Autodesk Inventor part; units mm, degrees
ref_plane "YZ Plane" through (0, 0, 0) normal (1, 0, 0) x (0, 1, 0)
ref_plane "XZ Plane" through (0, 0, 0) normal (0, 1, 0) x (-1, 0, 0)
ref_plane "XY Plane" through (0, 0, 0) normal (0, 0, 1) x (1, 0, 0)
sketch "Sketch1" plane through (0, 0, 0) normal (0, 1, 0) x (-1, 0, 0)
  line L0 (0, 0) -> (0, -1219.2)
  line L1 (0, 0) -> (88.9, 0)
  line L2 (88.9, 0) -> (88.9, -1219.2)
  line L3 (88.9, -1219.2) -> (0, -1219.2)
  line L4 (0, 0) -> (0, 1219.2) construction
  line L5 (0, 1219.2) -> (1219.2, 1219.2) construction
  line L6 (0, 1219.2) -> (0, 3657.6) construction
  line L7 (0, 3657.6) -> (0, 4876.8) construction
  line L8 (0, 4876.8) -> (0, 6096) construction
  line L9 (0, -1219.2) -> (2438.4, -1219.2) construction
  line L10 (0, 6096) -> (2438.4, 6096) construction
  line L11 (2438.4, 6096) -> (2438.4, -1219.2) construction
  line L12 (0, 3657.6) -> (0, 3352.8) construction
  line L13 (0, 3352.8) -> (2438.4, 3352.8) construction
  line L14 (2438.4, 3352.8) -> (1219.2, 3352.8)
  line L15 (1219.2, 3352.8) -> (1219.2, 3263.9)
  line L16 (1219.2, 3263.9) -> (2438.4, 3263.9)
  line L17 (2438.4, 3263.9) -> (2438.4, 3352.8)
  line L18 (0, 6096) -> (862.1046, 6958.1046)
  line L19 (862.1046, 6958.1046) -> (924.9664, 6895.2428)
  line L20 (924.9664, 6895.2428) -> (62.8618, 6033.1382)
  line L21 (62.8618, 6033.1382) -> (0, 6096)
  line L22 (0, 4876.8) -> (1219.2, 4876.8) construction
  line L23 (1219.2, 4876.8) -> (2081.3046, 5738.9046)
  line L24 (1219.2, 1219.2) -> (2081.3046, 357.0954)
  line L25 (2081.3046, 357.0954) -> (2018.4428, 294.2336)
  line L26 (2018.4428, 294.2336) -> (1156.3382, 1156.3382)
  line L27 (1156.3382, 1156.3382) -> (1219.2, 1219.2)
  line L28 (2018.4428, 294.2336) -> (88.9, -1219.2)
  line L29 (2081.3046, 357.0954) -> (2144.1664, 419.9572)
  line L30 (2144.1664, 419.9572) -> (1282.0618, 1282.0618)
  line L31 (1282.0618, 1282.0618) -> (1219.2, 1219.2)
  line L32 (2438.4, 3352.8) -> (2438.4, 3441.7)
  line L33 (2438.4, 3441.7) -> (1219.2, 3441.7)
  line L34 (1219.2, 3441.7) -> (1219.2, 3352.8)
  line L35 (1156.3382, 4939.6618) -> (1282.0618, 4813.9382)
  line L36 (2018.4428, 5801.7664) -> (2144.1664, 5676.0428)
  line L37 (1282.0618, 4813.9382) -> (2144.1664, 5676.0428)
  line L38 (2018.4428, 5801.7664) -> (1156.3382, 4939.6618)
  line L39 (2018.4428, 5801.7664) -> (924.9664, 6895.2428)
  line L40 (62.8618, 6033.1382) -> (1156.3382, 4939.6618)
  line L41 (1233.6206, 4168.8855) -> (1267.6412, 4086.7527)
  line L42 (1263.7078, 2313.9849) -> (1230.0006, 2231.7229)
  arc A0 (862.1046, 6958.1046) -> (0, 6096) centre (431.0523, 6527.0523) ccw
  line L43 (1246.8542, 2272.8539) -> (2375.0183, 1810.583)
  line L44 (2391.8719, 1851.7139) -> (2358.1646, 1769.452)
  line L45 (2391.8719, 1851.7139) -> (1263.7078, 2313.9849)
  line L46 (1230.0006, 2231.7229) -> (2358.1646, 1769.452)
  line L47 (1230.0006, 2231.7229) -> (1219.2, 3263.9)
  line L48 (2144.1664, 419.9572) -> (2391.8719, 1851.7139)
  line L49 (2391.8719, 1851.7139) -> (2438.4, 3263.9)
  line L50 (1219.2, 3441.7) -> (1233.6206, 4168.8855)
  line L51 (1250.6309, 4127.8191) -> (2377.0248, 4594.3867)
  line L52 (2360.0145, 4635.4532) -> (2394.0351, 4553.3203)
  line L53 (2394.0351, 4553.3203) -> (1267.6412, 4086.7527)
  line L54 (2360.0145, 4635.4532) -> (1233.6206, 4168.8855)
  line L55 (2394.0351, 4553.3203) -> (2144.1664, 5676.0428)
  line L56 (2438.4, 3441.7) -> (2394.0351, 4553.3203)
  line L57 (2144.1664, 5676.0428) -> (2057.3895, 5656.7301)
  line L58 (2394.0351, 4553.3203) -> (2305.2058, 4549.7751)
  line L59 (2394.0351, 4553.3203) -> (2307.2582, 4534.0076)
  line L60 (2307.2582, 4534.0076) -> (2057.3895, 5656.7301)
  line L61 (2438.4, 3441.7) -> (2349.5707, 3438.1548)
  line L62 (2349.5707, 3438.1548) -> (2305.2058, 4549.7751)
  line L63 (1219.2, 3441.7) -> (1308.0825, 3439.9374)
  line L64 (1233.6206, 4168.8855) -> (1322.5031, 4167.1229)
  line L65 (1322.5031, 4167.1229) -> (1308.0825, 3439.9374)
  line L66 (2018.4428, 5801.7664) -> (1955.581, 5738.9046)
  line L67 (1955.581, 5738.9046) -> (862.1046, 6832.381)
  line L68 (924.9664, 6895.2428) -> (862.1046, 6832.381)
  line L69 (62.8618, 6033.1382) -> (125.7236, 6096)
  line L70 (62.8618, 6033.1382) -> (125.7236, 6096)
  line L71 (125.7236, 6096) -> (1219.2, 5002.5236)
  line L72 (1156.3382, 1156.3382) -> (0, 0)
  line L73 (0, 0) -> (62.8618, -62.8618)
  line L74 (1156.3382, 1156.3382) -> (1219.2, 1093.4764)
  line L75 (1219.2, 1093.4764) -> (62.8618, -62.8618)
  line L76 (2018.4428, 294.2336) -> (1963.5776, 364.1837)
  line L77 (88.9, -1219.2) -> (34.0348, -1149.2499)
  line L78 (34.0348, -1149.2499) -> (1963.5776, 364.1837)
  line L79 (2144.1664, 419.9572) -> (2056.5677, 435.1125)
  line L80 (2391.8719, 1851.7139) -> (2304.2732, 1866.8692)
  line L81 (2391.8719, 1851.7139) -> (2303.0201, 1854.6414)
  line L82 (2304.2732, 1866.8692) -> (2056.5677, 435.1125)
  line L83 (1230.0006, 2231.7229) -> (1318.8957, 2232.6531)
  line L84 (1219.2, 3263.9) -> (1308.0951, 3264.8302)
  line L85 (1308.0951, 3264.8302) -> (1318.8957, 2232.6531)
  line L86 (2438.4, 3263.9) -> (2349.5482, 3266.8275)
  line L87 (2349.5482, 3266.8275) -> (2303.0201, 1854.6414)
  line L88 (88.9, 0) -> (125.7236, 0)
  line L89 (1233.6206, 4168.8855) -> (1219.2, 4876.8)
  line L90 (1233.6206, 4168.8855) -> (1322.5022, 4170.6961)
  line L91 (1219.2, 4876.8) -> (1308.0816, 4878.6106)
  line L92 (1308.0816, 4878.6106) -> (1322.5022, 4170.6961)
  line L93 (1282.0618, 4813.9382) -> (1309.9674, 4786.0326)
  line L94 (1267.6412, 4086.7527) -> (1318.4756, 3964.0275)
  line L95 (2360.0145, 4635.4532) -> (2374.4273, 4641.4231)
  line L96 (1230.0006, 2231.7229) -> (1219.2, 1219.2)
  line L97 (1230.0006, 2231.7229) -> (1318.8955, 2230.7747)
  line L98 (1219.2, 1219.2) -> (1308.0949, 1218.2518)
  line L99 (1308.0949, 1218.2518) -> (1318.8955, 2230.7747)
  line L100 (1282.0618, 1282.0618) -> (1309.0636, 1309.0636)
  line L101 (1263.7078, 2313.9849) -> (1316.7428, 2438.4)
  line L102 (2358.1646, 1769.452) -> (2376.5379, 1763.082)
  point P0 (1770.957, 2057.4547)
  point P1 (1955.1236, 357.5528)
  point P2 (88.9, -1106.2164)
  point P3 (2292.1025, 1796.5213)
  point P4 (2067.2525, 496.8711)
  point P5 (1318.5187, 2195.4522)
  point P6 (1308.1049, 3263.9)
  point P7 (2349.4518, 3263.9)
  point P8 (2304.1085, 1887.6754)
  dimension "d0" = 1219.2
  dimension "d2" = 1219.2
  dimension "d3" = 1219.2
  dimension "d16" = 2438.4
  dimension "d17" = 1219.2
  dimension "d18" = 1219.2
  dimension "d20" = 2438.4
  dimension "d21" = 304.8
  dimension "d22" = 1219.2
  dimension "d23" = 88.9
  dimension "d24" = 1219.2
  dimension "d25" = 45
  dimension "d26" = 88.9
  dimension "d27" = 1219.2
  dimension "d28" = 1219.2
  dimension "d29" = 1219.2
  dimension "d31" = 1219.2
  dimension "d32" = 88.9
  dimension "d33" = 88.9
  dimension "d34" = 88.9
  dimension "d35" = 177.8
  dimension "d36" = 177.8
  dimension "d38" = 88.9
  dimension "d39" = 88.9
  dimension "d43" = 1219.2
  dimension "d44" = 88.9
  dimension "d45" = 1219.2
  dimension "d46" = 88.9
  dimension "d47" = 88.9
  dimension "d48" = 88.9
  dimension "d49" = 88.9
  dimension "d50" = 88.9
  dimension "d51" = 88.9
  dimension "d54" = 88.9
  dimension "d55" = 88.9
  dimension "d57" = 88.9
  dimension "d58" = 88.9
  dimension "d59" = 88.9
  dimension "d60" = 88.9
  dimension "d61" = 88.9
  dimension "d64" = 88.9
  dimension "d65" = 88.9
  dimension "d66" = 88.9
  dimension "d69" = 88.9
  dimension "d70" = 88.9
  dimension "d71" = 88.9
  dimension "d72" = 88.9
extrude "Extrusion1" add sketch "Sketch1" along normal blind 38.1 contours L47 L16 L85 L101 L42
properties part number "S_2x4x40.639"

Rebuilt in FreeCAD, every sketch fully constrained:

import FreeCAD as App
import Part
import Sketcher
Q = App.Units.Quantity


def add_polygon(sketch, points):
    """Adds a closed chain of lines whose ends are joined by coincident constraints."""
    first, n = sketch.GeometryCount, len(points)
    for a, b in zip(points, points[1:] + points[:1]):
        sketch.addGeometry(Part.LineSegment(App.Vector(*a, 0), App.Vector(*b, 0)), False)
    for i in range(n):
        sketch.addConstraint(Sketcher.Constraint("Coincident", first + i, 2, first + (i + 1) % n, 1))

doc = App.newDocument("Part")
body = doc.addObject("PartDesign::Body", "Body")

sketch1 = body.newObject("Sketcher::SketchObject", "Sketch")
sketch1.AttachmentSupport = (doc.getObject("XZ_Plane"), [""])
sketch1.MapMode = "FlatFace"
add_polygon(sketch1, [(-1219, 3264), (-1230, 2232), (-1264, 2314), (-1317, 2438), (-1308, 3264)])
sketch1.addConstraint([
    Sketcher.Constraint("Horizontal", 4),
    Sketcher.Constraint("Parallel", 0, 3),
    Sketcher.Constraint("DistanceY", -1, 1, 2, 2, Q("96 in")),
    Sketcher.Constraint("DistanceX", 4, 2, -1, 1, Q("48 in")),
    Sketcher.Constraint("Distance", 1, Q("3.5 in")),
    Sketcher.Constraint("DistanceY", -1, 1, 3, 2, Q("128.5 in")),
    Sketcher.Constraint("Angle", 0, Q("-90.5995 deg")),
    Sketcher.Constraint("DistanceX", 4, 1, 4, 2, Q("3.5002 in")),
    Sketcher.Constraint("DistanceX", 2, 2, 1, 2, Q("2.088 in")),
    Sketcher.Constraint("Distance", 2, Q("5.3247 in")),
])
pad1 = body.newObject("PartDesign::Pad", "Pad")
pad1.Profile = sketch1
pad1.Length = Q("1.5 in")
pad1.Reversed = True

doc.recompute()
